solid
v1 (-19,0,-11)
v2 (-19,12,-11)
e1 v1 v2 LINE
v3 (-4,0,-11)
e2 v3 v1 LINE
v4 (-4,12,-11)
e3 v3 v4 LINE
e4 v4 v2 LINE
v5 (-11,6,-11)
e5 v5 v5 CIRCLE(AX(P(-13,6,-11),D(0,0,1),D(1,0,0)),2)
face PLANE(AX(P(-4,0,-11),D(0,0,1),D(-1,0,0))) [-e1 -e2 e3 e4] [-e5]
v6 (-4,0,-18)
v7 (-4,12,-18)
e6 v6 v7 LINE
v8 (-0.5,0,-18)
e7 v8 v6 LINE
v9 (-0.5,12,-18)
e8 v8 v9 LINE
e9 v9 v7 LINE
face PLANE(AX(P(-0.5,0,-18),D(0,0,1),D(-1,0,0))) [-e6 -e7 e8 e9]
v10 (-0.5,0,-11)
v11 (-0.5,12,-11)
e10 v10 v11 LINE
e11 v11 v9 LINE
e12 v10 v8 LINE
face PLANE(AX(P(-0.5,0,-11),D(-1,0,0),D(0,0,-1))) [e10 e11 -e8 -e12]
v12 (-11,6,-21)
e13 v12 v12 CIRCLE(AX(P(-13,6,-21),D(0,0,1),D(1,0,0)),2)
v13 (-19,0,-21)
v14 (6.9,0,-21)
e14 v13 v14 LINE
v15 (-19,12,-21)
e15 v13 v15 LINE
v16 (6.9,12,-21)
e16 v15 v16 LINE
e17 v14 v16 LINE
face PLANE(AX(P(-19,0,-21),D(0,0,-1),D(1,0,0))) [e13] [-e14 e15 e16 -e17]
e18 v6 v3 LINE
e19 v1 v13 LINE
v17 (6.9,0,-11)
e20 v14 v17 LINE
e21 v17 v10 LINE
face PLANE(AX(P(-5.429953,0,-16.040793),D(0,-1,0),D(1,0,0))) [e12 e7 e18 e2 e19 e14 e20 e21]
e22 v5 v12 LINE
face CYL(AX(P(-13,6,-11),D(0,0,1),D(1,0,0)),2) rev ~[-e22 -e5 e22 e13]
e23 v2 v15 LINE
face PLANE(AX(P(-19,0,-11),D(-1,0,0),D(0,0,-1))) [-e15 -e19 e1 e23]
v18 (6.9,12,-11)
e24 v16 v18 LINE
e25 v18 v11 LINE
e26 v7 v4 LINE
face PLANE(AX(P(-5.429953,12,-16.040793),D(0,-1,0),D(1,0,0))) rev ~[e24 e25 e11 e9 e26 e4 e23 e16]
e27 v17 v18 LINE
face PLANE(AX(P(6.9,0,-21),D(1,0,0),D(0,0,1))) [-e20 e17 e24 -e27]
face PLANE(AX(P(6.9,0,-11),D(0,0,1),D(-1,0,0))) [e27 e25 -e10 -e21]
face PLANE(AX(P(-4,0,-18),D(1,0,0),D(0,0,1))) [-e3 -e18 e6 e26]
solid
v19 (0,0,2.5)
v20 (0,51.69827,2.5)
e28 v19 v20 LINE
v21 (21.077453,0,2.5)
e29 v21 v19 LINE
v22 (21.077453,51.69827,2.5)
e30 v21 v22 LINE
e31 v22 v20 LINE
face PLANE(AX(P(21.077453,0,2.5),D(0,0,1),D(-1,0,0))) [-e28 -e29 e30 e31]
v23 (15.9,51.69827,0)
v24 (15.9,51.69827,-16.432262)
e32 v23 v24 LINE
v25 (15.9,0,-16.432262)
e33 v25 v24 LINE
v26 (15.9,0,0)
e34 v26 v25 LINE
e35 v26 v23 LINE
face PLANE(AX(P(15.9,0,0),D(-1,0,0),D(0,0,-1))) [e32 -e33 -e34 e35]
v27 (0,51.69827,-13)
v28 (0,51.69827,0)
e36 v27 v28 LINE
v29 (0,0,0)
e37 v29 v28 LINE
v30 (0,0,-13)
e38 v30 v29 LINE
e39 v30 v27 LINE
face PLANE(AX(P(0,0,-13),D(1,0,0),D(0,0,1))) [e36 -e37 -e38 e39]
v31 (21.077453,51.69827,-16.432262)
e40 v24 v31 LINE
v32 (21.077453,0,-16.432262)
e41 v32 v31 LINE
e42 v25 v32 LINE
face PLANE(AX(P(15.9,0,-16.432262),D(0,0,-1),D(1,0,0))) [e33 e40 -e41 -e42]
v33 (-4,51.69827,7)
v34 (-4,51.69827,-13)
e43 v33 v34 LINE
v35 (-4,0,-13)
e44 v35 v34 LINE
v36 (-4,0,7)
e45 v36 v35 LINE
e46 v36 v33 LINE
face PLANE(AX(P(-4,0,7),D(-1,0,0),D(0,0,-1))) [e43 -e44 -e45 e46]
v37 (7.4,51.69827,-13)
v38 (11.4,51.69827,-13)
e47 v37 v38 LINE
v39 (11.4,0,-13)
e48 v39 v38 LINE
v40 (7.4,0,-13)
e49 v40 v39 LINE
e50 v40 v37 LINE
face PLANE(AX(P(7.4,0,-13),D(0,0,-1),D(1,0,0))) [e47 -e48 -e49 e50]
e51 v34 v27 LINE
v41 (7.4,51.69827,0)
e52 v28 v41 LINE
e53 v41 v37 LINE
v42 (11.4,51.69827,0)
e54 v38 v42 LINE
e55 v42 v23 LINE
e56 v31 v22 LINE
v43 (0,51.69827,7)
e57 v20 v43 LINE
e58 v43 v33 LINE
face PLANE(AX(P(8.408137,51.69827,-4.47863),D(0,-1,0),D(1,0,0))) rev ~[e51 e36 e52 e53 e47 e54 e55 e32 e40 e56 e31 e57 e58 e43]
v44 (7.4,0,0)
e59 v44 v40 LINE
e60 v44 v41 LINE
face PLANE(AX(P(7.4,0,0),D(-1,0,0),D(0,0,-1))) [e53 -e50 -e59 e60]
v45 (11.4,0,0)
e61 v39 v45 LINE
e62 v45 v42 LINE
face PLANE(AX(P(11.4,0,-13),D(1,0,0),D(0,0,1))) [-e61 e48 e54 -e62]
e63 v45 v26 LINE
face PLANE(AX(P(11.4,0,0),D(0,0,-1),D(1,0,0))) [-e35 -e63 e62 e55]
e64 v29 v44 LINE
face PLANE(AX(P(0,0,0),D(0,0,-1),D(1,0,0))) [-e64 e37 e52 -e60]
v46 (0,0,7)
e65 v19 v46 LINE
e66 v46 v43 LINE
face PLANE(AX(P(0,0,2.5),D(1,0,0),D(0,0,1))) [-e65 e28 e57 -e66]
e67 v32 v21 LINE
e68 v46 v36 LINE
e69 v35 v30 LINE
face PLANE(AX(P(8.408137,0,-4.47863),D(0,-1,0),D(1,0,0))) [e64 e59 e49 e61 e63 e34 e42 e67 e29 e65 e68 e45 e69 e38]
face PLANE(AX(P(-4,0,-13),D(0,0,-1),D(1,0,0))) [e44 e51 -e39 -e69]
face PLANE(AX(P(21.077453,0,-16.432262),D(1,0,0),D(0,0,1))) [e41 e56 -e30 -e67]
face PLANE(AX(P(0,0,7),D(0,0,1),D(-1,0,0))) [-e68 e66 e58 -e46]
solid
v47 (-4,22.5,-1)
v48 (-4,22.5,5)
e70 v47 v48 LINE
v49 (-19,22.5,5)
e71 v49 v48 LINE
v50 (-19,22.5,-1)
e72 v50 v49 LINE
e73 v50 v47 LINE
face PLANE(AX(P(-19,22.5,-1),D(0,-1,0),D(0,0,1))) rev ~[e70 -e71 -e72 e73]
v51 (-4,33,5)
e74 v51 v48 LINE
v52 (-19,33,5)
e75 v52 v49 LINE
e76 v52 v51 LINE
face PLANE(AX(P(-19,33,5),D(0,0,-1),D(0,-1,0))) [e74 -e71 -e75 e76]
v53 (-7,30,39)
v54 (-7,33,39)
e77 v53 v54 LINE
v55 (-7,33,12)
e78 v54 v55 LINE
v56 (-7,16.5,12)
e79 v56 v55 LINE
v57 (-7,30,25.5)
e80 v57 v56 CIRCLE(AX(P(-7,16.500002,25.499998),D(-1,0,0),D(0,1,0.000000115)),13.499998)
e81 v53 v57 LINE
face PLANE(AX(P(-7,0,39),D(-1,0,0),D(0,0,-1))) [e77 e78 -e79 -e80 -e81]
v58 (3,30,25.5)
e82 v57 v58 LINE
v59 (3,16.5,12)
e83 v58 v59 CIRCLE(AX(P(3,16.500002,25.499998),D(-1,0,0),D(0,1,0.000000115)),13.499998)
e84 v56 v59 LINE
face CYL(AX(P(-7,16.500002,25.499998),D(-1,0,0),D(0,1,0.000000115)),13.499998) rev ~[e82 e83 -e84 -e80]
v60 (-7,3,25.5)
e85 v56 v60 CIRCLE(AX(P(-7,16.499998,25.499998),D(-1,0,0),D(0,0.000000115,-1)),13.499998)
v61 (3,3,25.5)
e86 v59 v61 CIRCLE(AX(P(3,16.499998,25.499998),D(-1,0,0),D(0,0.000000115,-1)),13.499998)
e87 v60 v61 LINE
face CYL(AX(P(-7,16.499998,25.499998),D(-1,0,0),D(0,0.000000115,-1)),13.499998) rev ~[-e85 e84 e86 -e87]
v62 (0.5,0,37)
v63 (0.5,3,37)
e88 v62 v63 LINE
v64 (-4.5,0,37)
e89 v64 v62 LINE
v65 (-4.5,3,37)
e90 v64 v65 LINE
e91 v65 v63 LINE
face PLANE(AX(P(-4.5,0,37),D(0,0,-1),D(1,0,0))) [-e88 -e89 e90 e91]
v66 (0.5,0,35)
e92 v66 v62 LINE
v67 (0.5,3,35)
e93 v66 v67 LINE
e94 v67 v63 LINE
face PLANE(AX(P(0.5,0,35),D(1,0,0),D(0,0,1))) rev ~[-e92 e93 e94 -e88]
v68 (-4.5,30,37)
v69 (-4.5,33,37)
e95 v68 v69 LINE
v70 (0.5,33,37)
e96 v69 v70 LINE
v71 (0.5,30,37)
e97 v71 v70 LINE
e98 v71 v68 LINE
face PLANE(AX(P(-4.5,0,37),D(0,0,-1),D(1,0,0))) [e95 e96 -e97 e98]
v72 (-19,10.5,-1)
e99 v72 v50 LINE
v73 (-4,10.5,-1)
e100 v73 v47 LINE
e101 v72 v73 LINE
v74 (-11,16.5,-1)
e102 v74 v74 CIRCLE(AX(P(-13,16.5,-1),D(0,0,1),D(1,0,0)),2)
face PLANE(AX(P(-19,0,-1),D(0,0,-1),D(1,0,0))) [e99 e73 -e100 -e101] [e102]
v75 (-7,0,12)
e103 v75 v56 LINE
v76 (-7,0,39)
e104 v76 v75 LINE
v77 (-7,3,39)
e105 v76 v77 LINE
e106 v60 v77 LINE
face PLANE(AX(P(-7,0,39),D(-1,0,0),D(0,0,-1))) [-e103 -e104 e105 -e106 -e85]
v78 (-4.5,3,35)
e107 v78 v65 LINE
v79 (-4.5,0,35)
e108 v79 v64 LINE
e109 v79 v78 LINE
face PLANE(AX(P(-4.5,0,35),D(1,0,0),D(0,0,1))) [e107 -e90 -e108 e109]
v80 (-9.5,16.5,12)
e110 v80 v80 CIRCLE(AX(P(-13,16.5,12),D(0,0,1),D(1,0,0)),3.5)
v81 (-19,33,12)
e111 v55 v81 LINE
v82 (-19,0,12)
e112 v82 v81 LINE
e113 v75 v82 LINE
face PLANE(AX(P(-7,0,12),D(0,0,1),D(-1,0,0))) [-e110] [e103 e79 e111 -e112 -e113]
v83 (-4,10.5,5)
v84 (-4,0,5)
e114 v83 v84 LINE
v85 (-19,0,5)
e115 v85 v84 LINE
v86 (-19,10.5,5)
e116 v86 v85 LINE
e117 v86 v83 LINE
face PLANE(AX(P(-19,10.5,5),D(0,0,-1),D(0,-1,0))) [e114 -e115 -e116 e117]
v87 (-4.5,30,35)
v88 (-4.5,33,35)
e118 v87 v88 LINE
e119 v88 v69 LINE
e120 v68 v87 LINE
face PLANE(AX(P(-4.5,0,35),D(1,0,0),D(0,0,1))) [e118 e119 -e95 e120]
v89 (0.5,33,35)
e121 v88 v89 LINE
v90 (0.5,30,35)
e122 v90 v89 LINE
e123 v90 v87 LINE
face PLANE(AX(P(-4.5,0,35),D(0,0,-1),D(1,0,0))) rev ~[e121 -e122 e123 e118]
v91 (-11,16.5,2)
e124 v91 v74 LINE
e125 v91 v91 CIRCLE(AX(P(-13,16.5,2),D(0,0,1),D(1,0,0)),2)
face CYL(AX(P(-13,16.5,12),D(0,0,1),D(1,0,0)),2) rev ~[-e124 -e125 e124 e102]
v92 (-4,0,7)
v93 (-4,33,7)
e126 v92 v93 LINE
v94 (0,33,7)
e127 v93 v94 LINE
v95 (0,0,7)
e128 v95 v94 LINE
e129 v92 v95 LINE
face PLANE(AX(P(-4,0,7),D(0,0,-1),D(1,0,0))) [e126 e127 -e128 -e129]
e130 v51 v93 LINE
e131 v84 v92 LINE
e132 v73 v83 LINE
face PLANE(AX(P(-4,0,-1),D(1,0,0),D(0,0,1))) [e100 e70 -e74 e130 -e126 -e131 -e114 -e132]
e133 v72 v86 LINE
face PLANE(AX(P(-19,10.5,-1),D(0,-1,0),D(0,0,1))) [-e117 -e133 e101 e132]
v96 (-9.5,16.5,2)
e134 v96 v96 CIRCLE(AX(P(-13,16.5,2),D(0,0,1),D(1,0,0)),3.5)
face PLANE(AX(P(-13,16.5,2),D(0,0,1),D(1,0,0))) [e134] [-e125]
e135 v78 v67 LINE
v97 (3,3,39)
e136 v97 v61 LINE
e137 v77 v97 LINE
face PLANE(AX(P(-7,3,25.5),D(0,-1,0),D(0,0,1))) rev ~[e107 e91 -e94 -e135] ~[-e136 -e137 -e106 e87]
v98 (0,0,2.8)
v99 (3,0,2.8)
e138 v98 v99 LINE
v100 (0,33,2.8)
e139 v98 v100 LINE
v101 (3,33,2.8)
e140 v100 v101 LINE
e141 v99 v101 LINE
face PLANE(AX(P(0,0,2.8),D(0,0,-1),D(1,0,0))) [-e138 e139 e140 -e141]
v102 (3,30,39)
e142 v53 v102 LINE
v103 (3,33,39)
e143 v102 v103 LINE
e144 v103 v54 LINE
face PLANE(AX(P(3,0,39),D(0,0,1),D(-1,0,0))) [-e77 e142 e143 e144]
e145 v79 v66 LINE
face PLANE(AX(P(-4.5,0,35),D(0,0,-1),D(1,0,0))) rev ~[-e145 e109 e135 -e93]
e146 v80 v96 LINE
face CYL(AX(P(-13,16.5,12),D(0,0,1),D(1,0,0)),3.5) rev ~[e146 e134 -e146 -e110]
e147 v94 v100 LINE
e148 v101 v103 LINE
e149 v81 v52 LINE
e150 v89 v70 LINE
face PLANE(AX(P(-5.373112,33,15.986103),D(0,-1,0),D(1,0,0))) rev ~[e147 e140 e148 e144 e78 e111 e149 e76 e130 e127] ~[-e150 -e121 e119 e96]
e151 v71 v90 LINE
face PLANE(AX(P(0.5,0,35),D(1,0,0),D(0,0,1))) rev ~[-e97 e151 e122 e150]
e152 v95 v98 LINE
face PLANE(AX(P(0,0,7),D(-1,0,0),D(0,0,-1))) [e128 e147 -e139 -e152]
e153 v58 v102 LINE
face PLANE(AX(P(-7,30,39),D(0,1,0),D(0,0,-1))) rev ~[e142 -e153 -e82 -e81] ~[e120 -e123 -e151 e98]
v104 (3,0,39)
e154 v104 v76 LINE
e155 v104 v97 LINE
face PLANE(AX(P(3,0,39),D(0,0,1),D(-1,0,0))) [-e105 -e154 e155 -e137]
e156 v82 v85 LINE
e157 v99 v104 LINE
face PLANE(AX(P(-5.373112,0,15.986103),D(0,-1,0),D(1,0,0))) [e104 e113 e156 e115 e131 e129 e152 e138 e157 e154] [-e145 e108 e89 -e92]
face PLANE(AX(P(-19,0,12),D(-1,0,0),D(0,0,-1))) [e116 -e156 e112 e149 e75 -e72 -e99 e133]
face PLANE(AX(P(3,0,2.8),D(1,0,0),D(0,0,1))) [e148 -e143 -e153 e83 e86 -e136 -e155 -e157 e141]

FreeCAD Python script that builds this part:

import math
import FreeCAD as App
import Part
import Sketcher
from FreeCAD import Vector
Q = App.Units.Quantity


def add_polygon(sketch, points):
    """Adds a closed chain of lines whose ends are joined by coincident constraints."""
    first, n = sketch.GeometryCount, len(points)
    for a, b in zip(points, points[1:] + points[:1]):
        sketch.addGeometry(Part.LineSegment(App.Vector(*a, 0), App.Vector(*b, 0)), False)
    for i in range(n):
        sketch.addConstraint(Sketcher.Constraint("Coincident", first + i, 2, first + (i + 1) % n, 1))

doc = App.newDocument("Part")
body = doc.addObject("PartDesign::Body", "Body")

# Sketch on XZ plane
sketch1 = body.newObject("Sketcher::SketchObject", "Sketch")
sketch1.AttachmentSupport = (doc.getObject("XZ_Plane"), [""])
sketch1.MapMode = "FlatFace"
add_polygon(sketch1, [(0, -13), (0, 0), (7.4, 0), (7.4, -13), (11.4, -13), (11.4, 0), (15.9, 0), (15.9, -16.4), (21.1, -16.4), (21.1, 2.5), (0, 2.5), (0, 7), (-4, 7), (-4, -13)])  # lines 0-13
sketch1.addConstraint([
    Sketcher.Constraint("Vertical", 0),
    Sketcher.Constraint("Horizontal", 1),
    Sketcher.Constraint("Vertical", 2),
    Sketcher.Constraint("Horizontal", 3),
    Sketcher.Constraint("Vertical", 4),
    Sketcher.Constraint("Horizontal", 5),
    Sketcher.Constraint("Vertical", 6),
    Sketcher.Constraint("Horizontal", 7),
    Sketcher.Constraint("Vertical", 8),
    Sketcher.Constraint("Horizontal", 9),
    Sketcher.Constraint("Vertical", 10),
    Sketcher.Constraint("Horizontal", 11),
    Sketcher.Constraint("Vertical", 12),
    Sketcher.Constraint("Horizontal", 13),
    Sketcher.Constraint("Coincident", 0, 2, -1, 1),
    Sketcher.Constraint("PointOnObject", 4, 2, -1),
    Sketcher.Constraint("PointOnObject", 9, 2, -2),
    Sketcher.Constraint("Horizontal", 3, 2, 12, 2),
    Sketcher.Constraint("Equal", 3, 11),
    Sketcher.Constraint("Equal", 5, 10),
    Sketcher.Constraint("DistanceX", 3, 1, 3, 2, Q("4 mm")),
    Sketcher.Constraint("DistanceY", 0, 1, 0, 2, Q("13 mm")),
    Sketcher.Constraint("DistanceY", 12, 2, 12, 1, Q("20 mm")),
    Sketcher.Constraint("DistanceX", 1, 1, 1, 2, Q("7.4 mm")),
    Sketcher.Constraint("DistanceX", 5, 1, 5, 2, Q("4.5 mm")),
    Sketcher.Constraint("DistanceX", 7, 1, 7, 2, Q("5.177453 mm")),
    Sketcher.Constraint("DistanceY", 6, 2, 6, 1, Q("16.432262 mm")),
])
pad1 = body.newObject("PartDesign::Pad", "Pad")
pad1.Profile = sketch1
pad1.Length = 51.69827
pad1.Reversed = True
body2 = doc.addObject("PartDesign::Body", "Body001")

# Sketch on XZ plane
sketch2 = body2.newObject("Sketcher::SketchObject", "Sketch001")
sketch2.AttachmentSupport = (doc.getObject("XZ_Plane001"), [""])
sketch2.MapMode = "FlatFace"
add_polygon(sketch2, [(-4, -1), (-4, 7), (0, 7), (0, 2.8), (3, 2.8), (3, 39), (-7, 39), (-7, 12), (-19, 12), (-19, -1)])  # lines 0-9
sketch2.addConstraint([
    Sketcher.Constraint("Vertical", 0),
    Sketcher.Constraint("Horizontal", 1),
    Sketcher.Constraint("Vertical", 2),
    Sketcher.Constraint("Horizontal", 3),
    Sketcher.Constraint("Vertical", 4),
    Sketcher.Constraint("Horizontal", 5),
    Sketcher.Constraint("Vertical", 6),
    Sketcher.Constraint("Horizontal", 7),
    Sketcher.Constraint("Vertical", 8),
    Sketcher.Constraint("Horizontal", 9),
    Sketcher.Constraint("PointOnObject", 1, 2, -2),
    Sketcher.Constraint("DistanceX", 1, 1, 1, 2, Q("4 mm")),
    Sketcher.Constraint("DistanceX", 3, 1, 3, 2, Q("3 mm")),
    Sketcher.Constraint("DistanceX", 5, 2, 5, 1, Q("10 mm")),
    Sketcher.Constraint("DistanceX", 7, 2, 7, 1, Q("12 mm")),
    Sketcher.Constraint("DistanceY", 0, 1, 0, 2, Q("8 mm")),
    Sketcher.Constraint("DistanceY", 6, 2, 6, 1, Q("27 mm")),
    Sketcher.Constraint("DistanceY", 8, 2, 8, 1, Q("13 mm")),
    Sketcher.Constraint("DistanceY", 2, 2, 2, 1, Q("4.2 mm")),
    Sketcher.Constraint("DistanceY", -1, 1, 0, 2, Q("7 mm")),
])
pad2 = body2.newObject("PartDesign::Pad", "Pad001")
pad2.Profile = sketch2
pad2.Length = 33
pad2.Reversed = True

# Sketch on XY plane
sketch3 = body2.newObject("Sketcher::SketchObject", "Sketch002")
sketch3.AttachmentSupport = (doc.getObject("XY_Plane001"), [""])
sketch3.MapMode = "FlatFace"
sketch3.AttachmentOffset = App.Placement(Vector(0, 0, 12), App.Rotation())
sketch3.addGeometry(Part.Circle(Vector(-13, 16.5, 0), Vector(0, 0, 1), 2), False)
sketch3.addConstraint([
    Sketcher.Constraint("Diameter", 0, Q("4 mm")),
    Sketcher.Constraint("DistanceX", 0, 3, -1, 1, Q("13 mm")),
    Sketcher.Constraint("DistanceY", -1, 1, 0, 3, Q("16.5 mm")),
])
pocket1 = body2.newObject("PartDesign::Pocket", "Pocket")
pocket1.Profile = sketch3
pocket1.Type = "ThroughAll"

# Sketch on XY plane
sketch4 = body2.newObject("Sketcher::SketchObject", "Sketch003")
sketch4.AttachmentSupport = (doc.getObject("XY_Plane001"), [""])
sketch4.MapMode = "FlatFace"
sketch4.AttachmentOffset = App.Placement(Vector(0, 0, 12), App.Rotation())
sketch4.addGeometry([
    Part.Circle(Vector(-13, 16.5, 0), Vector(0, 0, 1), 3.5),
    Part.Circle(Vector(-13, 16.5, 0), Vector(0, 0, 1), 2),
], False)
sketch4.addConstraint([
    Sketcher.Constraint("Coincident", 1, 3, 0, 3),
    Sketcher.Constraint("Diameter", 0, Q("7 mm")),
    Sketcher.Constraint("Diameter", 1, Q("4 mm")),
    Sketcher.Constraint("DistanceX", 0, 3, -1, 1, Q("13 mm")),
    Sketcher.Constraint("DistanceY", -1, 1, 0, 3, Q("16.5 mm")),
])
pocket2 = body2.newObject("PartDesign::Pocket", "Pocket001")
pocket2.Profile = sketch4
pocket2.Length = 10

# Sketch on YZ plane
sketch5 = body2.newObject("Sketcher::SketchObject", "Sketch004")
sketch5.AttachmentSupport = (doc.getObject("YZ_Plane001"), [""])
sketch5.MapMode = "FlatFace"
sketch5.AttachmentOffset = App.Placement(Vector(0, 0, -7), App.Rotation())
sketch5.addGeometry([
    Part.LineSegment(Vector(3, 39, 0), Vector(30, 39, 0)),  # 0
    Part.LineSegment(Vector(30, 39, 0), Vector(30, 26, 0)),  # 1
    Part.ArcOfCircle(Part.Circle(Vector(17, 25, 0), Vector(0, 0, 1), 13), math.radians(-90), math.radians(0)),  # 2
    Part.ArcOfCircle(Part.Circle(Vector(16, 25, 0), Vector(0, 0, 1), 13), math.radians(180), math.radians(270)),  # 3
    Part.LineSegment(Vector(3, 26, 0), Vector(3, 39, 0)),  # 4
], False)
sketch5.addConstraint([
    Sketcher.Constraint("Coincident", 0, 2, 1, 1),
    Sketcher.Constraint("Tangent", 1, 2, 2, 2),
    Sketcher.Constraint("Tangent", 2, 1, 3, 2),
    Sketcher.Constraint("Tangent", 3, 1, 4, 1),
    Sketcher.Constraint("Coincident", 4, 2, 0, 1),
    Sketcher.Constraint("Horizontal", 0),
    Sketcher.Constraint("Vertical", 1),
    Sketcher.Constraint("Vertical", 4),
    Sketcher.Constraint("Equal", 2, 3),
    Sketcher.Constraint("Vertical", 3, 3, 2, 1),
    Sketcher.Constraint("Radius", 2, Q("13.499998 mm")),
    Sketcher.Constraint("DistanceY", 1, 2, 1, 1, Q("13.5 mm")),
    Sketcher.Constraint("DistanceX", -1, 1, 0, 2, Q("30 mm")),
    Sketcher.Constraint("DistanceY", -1, 1, 0, 2, Q("39 mm")),
])
pocket3 = body2.newObject("PartDesign::Pocket", "Pocket002")
pocket3.Profile = sketch5
pocket3.Type = "ThroughAll"
pocket3.Reversed = True

# Sketch on XZ plane
sketch6 = body2.newObject("Sketcher::SketchObject", "Sketch005")
sketch6.AttachmentSupport = (doc.getObject("XZ_Plane001"), [""])
sketch6.MapMode = "FlatFace"
add_polygon(sketch6, [(-4.5, 37), (-4.5, 35), (0.5, 35), (0.5, 37)])  # lines 0-3
sketch6.addConstraint([
    Sketcher.Constraint("Vertical", 0),
    Sketcher.Constraint("Horizontal", 1),
    Sketcher.Constraint("Vertical", 2),
    Sketcher.Constraint("Horizontal", 3),
    Sketcher.Constraint("DistanceX", 1, 1, 1, 2, Q("5 mm")),
    Sketcher.Constraint("DistanceY", 0, 2, 0, 1, Q("2 mm")),
    Sketcher.Constraint("DistanceY", -1, 1, 0, 2, Q("35 mm")),
    Sketcher.Constraint("DistanceX", 0, 2, -1, 1, Q("4.5 mm")),
])
pocket4 = body2.newObject("PartDesign::Pocket", "Pocket003")
pocket4.Profile = sketch6
pocket4.Type = "ThroughAll"

# Sketch on YZ plane
sketch7 = body2.newObject("Sketcher::SketchObject", "Sketch006")
sketch7.AttachmentSupport = (doc.getObject("YZ_Plane001"), [""])
sketch7.MapMode = "FlatFace"
sketch7.AttachmentOffset = App.Placement(Vector(0, 0, -19), App.Rotation())
add_polygon(sketch7, [(33, 5), (33, -1), (22, -1), (22, 5)])  # lines 0-3
add_polygon(sketch7, [(10, 5), (10, -1), (0, -1), (0, 5)])  # lines 4-7
sketch7.addConstraint([
    Sketcher.Constraint("Vertical", 0),
    Sketcher.Constraint("Horizontal", 1),
    Sketcher.Constraint("Vertical", 2),
    Sketcher.Constraint("Horizontal", 3),
    Sketcher.Constraint("Vertical", 4),
    Sketcher.Constraint("Horizontal", 5),
    Sketcher.Constraint("Vertical", 6),
    Sketcher.Constraint("Horizontal", 7),
    Sketcher.Constraint("PointOnObject", 5, 2, -2),
    Sketcher.Constraint("Horizontal", 1, 2, 4, 2),
    Sketcher.Constraint("Horizontal", 3, 2, 6, 2),
    Sketcher.Constraint("Equal", 3, 5),
    Sketcher.Constraint("DistanceY", 0, 2, 0, 1, Q("6 mm")),
    Sketcher.Constraint("DistanceX", 1, 2, 1, 1, Q("10.5 mm")),
    Sketcher.Constraint("DistanceX", -1, 1, 0, 2, Q("33 mm")),
    Sketcher.Constraint("DistanceY", 0, 2, -1, 1, Q("1 mm")),
])
pocket5 = body2.newObject("PartDesign::Pocket", "Pocket004")
pocket5.Profile = sketch7
pocket5.Length = 15
pocket5.Reversed = True
body3 = doc.addObject("PartDesign::Body", "Body002")

# Sketch on XZ plane
sketch8 = body3.newObject("Sketcher::SketchObject", "Sketch007")
sketch8.AttachmentSupport = (doc.getObject("XZ_Plane002"), [""])
sketch8.MapMode = "FlatFace"
add_polygon(sketch8, [(-0.5, -11), (-0.5, -18), (-4, -18), (-4, -11), (-19, -11), (-19, -21), (6.9, -21), (6.9, -11)])  # lines 0-7
sketch8.addConstraint([
    Sketcher.Constraint("Vertical", 0),
    Sketcher.Constraint("Horizontal", 1),
    Sketcher.Constraint("Vertical", 2),
    Sketcher.Constraint("Horizontal", 3),
    Sketcher.Constraint("Vertical", 4),
    Sketcher.Constraint("Horizontal", 5),
    Sketcher.Constraint("Vertical", 6),
    Sketcher.Constraint("Horizontal", 7),
    Sketcher.Constraint("Horizontal", 3, 2, 6, 2),
    Sketcher.Constraint("DistanceX", 3, 2, 3, 1, Q("15 mm")),
    Sketcher.Constraint("DistanceY", 0, 2, 0, 1, Q("7 mm")),
    Sketcher.Constraint("DistanceY", 4, 2, 4, 1, Q("10 mm")),
    Sketcher.Constraint("DistanceX", 1, 2, 1, 1, Q("3.5 mm")),
    Sketcher.Constraint("DistanceX", 5, 1, 5, 2, Q("25.9 mm")),
    Sketcher.Constraint("DistanceY", 0, 2, -1, 1, Q("18 mm")),
    Sketcher.Constraint("DistanceX", 1, 2, -1, 1, Q("4 mm")),
])
pad3 = body3.newObject("PartDesign::Pad", "Pad002")
pad3.Profile = sketch8
pad3.Length = 12
pad3.Reversed = True

# Sketch on XY plane
sketch9 = body3.newObject("Sketcher::SketchObject", "Sketch008")
sketch9.AttachmentSupport = (doc.getObject("XY_Plane002"), [""])
sketch9.MapMode = "FlatFace"
sketch9.AttachmentOffset = App.Placement(Vector(0, 0, -11), App.Rotation())
sketch9.addGeometry(Part.Circle(Vector(-13, 6, 0), Vector(0, 0, 1), 2), False)
sketch9.addConstraint([
    Sketcher.Constraint("Diameter", 0, Q("4 mm")),
    Sketcher.Constraint("DistanceX", 0, 3, -1, 1, Q("13 mm")),
    Sketcher.Constraint("DistanceY", -1, 1, 0, 3, Q("6 mm")),
])
pocket6 = body3.newObject("PartDesign::Pocket", "Pocket005")
pocket6.Profile = sketch9
pocket6.Type = "ThroughAll"

doc.recompute()
